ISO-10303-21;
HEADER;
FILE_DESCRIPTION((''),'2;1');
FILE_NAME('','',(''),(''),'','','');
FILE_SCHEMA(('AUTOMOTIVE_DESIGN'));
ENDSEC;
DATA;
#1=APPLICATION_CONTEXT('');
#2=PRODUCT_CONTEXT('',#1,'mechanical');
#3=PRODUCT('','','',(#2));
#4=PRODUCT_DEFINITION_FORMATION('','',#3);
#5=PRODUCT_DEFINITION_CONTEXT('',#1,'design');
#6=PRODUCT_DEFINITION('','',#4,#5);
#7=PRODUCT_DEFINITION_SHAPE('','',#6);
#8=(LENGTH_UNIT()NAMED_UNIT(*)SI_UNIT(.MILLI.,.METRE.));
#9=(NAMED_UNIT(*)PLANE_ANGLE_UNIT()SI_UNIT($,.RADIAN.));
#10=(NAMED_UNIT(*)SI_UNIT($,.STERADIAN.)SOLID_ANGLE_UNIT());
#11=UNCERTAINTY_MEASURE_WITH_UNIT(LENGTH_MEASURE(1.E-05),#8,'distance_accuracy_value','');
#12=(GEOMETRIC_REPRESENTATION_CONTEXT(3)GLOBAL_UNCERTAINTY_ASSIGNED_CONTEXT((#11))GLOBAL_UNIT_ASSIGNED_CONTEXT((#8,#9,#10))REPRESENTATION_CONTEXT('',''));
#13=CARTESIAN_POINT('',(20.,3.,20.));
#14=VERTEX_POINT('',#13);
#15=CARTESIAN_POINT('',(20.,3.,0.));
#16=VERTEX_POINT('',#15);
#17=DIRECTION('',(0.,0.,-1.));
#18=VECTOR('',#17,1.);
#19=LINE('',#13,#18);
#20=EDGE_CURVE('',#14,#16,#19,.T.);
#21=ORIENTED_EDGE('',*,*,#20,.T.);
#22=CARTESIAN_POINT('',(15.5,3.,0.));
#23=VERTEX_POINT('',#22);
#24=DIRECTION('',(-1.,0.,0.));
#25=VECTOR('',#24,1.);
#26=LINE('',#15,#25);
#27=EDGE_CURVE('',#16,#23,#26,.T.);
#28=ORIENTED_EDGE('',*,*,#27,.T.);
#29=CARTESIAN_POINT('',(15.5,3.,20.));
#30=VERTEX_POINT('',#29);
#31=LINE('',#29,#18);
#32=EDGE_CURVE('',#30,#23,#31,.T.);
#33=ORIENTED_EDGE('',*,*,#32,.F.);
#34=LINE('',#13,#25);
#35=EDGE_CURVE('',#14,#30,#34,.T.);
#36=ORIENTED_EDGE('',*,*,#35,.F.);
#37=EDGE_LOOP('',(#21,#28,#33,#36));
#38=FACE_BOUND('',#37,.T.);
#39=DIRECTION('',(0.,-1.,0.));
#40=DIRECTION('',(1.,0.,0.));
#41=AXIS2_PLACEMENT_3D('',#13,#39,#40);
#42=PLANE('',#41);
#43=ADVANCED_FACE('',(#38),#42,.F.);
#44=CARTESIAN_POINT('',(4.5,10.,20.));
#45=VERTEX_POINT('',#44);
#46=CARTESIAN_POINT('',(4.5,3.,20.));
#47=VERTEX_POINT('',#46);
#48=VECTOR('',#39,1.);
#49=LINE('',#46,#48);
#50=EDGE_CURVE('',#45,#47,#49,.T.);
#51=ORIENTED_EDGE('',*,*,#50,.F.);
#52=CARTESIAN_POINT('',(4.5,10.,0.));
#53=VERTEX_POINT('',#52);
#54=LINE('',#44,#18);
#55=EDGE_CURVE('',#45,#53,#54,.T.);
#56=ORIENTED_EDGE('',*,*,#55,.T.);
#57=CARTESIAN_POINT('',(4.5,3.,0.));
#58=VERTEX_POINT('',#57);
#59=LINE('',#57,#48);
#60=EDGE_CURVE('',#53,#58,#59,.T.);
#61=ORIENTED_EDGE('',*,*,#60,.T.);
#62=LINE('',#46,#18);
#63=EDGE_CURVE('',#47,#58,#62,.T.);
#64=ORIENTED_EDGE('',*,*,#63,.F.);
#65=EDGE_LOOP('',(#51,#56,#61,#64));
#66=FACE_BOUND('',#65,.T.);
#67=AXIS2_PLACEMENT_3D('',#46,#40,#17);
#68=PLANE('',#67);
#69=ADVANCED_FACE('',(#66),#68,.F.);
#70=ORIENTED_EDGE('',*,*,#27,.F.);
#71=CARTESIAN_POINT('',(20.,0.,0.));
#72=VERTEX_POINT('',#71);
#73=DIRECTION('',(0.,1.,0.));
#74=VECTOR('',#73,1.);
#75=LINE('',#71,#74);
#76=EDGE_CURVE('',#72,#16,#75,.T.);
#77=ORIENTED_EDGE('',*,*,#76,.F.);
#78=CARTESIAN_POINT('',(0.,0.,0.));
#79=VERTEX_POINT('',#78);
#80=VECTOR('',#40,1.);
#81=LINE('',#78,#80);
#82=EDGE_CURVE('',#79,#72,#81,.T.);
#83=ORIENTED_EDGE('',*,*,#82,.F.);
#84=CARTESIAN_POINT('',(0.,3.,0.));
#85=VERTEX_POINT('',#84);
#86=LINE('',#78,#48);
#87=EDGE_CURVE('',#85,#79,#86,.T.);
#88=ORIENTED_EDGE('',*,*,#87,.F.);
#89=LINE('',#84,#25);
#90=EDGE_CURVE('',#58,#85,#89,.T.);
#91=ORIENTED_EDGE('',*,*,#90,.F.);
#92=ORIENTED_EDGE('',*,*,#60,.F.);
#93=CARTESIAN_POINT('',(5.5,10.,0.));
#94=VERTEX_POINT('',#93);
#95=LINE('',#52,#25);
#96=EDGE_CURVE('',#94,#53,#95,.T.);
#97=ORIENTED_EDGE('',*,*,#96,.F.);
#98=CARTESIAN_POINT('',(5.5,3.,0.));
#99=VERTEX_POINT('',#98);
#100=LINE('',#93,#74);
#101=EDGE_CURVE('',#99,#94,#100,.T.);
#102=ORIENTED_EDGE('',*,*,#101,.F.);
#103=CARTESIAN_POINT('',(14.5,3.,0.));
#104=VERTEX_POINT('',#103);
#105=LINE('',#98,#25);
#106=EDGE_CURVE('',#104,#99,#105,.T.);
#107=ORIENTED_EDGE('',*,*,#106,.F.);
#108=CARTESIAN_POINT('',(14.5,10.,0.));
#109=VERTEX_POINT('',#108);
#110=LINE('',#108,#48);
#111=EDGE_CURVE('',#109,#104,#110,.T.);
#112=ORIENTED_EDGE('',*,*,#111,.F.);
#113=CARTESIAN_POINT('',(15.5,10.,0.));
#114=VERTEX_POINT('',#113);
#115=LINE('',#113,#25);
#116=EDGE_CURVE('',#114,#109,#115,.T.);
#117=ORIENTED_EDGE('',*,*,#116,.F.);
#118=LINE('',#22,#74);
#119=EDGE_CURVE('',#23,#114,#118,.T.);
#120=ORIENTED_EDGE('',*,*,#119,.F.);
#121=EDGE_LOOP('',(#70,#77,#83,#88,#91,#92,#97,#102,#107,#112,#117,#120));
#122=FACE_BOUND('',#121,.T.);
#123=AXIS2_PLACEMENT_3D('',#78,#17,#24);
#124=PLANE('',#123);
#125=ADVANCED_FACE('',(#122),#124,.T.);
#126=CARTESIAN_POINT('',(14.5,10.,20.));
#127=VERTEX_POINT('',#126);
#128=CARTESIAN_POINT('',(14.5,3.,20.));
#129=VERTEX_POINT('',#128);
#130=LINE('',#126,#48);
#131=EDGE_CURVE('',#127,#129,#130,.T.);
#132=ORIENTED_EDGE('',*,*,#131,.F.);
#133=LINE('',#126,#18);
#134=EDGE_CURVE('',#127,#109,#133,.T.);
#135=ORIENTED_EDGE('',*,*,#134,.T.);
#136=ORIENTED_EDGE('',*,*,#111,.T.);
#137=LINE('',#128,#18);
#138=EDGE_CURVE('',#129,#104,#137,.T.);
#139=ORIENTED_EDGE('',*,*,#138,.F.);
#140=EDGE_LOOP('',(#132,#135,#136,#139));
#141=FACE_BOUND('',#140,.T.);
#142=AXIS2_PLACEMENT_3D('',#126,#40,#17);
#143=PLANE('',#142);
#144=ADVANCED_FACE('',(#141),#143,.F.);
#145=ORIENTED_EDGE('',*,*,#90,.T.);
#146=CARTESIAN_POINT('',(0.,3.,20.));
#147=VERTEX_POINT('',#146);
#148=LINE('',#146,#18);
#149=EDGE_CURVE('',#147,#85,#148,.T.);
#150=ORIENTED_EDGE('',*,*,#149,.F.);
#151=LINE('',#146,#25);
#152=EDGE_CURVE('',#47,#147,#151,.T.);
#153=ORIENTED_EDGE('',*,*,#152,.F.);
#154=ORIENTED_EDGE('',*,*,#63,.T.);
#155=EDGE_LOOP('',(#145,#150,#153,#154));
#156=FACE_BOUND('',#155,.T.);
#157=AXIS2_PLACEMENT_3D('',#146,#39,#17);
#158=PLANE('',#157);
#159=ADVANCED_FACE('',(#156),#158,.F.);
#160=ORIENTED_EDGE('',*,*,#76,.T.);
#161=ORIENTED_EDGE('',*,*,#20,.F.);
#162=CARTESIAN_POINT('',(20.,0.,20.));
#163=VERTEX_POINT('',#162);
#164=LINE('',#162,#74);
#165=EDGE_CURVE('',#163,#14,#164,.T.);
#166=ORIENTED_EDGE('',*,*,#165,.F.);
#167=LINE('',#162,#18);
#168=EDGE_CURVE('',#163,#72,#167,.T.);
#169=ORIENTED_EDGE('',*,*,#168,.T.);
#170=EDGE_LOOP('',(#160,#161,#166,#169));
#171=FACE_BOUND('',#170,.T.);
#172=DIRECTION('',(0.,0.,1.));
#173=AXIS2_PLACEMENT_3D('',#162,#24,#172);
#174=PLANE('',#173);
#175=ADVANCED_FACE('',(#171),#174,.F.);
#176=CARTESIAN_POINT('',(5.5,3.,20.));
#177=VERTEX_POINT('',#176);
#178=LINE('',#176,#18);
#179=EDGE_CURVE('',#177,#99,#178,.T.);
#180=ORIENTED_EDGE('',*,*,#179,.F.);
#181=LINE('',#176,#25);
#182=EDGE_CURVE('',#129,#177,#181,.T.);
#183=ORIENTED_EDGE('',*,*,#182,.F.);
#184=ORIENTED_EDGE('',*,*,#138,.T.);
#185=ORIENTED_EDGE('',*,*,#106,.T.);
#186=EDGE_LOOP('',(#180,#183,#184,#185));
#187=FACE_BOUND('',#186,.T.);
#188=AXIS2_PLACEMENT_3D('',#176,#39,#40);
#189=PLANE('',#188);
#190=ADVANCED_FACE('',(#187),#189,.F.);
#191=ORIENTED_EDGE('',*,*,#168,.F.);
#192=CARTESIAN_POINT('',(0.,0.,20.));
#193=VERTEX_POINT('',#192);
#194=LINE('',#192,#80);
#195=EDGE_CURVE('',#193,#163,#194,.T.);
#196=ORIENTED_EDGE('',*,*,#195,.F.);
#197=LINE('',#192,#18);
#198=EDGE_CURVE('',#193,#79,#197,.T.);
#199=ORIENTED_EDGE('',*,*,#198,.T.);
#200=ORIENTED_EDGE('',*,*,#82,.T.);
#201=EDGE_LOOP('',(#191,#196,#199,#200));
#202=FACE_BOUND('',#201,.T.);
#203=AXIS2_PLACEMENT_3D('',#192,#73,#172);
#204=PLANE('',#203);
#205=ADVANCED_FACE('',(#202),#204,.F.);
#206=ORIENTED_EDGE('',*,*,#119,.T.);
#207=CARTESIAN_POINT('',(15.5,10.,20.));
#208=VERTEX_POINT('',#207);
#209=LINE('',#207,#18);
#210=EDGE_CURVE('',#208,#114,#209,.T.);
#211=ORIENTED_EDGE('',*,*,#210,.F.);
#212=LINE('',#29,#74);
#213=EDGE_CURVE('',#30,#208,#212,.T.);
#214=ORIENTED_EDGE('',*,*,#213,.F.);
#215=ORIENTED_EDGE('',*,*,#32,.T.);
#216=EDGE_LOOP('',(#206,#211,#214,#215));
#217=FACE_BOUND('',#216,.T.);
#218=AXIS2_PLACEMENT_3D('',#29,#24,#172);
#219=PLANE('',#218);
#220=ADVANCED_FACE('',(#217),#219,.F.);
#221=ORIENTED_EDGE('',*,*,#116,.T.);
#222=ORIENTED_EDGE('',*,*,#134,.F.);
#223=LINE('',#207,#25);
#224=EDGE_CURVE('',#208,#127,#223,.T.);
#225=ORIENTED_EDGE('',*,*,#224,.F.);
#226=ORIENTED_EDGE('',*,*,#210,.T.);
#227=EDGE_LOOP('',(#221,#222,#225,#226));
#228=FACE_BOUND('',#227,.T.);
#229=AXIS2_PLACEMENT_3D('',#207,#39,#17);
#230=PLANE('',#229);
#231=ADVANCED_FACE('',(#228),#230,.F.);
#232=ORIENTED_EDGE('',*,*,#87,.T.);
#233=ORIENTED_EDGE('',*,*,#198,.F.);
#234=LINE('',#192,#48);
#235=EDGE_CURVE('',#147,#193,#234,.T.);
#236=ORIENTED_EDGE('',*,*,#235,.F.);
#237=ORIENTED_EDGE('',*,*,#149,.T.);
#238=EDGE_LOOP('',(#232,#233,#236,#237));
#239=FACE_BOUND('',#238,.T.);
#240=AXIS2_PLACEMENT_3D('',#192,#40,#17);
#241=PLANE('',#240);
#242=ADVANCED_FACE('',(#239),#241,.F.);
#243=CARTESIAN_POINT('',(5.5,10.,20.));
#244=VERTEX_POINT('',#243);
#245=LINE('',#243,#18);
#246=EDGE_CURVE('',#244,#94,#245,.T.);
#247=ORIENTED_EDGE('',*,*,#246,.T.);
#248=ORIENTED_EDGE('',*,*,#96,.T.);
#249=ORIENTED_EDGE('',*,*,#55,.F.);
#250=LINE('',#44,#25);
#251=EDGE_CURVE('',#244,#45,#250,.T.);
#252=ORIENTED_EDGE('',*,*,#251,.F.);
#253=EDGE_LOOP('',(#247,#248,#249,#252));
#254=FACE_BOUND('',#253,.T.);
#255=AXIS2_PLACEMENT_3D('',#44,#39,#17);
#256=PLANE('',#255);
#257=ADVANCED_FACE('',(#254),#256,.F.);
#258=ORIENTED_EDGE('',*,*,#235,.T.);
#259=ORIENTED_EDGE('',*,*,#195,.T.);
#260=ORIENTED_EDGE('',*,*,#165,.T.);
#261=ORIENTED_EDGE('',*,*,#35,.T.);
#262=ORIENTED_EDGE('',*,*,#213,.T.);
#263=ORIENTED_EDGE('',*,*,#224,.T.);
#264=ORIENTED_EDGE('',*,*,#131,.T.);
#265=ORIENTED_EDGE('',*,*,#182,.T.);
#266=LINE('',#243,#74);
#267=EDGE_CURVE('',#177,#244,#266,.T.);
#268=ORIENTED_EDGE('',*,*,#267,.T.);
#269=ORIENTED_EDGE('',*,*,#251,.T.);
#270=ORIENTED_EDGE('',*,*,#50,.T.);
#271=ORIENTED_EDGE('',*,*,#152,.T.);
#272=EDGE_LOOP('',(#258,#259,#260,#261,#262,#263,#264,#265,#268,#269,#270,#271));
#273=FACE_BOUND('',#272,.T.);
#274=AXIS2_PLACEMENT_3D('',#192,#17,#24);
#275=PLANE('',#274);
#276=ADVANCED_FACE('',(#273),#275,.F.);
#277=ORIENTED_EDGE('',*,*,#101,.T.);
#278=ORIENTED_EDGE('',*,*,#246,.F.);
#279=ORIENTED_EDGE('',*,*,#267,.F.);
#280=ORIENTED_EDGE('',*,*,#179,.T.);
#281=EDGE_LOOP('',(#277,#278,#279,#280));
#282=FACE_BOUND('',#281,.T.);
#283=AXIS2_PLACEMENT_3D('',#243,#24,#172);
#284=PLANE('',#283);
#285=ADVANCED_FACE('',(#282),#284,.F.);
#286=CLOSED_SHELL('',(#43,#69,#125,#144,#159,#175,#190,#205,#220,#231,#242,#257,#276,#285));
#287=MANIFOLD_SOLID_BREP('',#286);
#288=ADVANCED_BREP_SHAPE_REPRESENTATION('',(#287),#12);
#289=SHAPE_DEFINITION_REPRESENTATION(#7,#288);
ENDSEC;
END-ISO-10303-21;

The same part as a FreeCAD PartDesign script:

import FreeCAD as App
import Part
import Sketcher

V = App.Vector
Q = App.Units.Quantity


def add_polygon(sketch, points):
    """Adds a closed chain of lines whose ends are joined by coincident constraints."""
    first, n = sketch.GeometryCount, len(points)
    for a, b in zip(points, points[1:] + points[:1]):
        sketch.addGeometry(Part.LineSegment(App.Vector(*a, 0), App.Vector(*b, 0)), False)
    for i in range(n):
        sketch.addConstraint(Sketcher.Constraint("Coincident", first + i, 2, first + (i + 1) % n, 1))

doc = App.newDocument("Part")
body = doc.addObject("PartDesign::Body", "Body")

# Sketch on XY plane
sketch1 = doc.addObject("Sketcher::SketchObject", "Sketch")
body.addObject(sketch1)
sketch1.AttachmentSupport = (doc.XY_Plane, [""])
sketch1.MapMode = "FlatFace"
add_polygon(sketch1, [(0, 0), (20, 0), (20, 3), (15.5, 3), (15.5, 10), (14.5, 10), (14.5, 3), (5.5, 3), (5.5, 10), (4.5, 10), (4.5, 3), (0, 3)])  # lines 0-11
sketch1.addConstraint(Sketcher.Constraint("Horizontal", 0))
sketch1.addConstraint(Sketcher.Constraint("Vertical", 1))
sketch1.addConstraint(Sketcher.Constraint("Horizontal", 2))
sketch1.addConstraint(Sketcher.Constraint("Vertical", 3))
sketch1.addConstraint(Sketcher.Constraint("Horizontal", 4))
sketch1.addConstraint(Sketcher.Constraint("Vertical", 5))
sketch1.addConstraint(Sketcher.Constraint("Horizontal", 6))
sketch1.addConstraint(Sketcher.Constraint("Vertical", 7))
sketch1.addConstraint(Sketcher.Constraint("Horizontal", 8))
sketch1.addConstraint(Sketcher.Constraint("Vertical", 9))
sketch1.addConstraint(Sketcher.Constraint("Horizontal", 10))
sketch1.addConstraint(Sketcher.Constraint("Vertical", 11))
sketch1.addConstraint(Sketcher.Constraint("Coincident", 11, 2, -1, 1))
sketch1.addConstraint(Sketcher.Constraint("Horizontal", 2, 2, 5, 2))
sketch1.addConstraint(Sketcher.Constraint("Horizontal", 4, 2, 7, 2))
sketch1.addConstraint(Sketcher.Constraint("Horizontal", 6, 2, 9, 2))
sketch1.addConstraint(Sketcher.Constraint("Equal", 4, 8))
sketch1.addConstraint(Sketcher.Constraint("Equal", 2, 10))
sketch1.addConstraint(Sketcher.Constraint("DistanceX", 0, 1, 0, 2, Q("20 mm")))
sketch1.addConstraint(Sketcher.Constraint("DistanceX", 4, 2, 4, 1, Q("1 mm")))
sketch1.addConstraint(Sketcher.Constraint("DistanceX", 6, 2, 6, 1, Q("9 mm")))
sketch1.addConstraint(Sketcher.Constraint("DistanceY", 1, 1, 1, 2, Q("3 mm")))
sketch1.addConstraint(Sketcher.Constraint("DistanceY", 3, 1, 3, 2, Q("7 mm")))
pad1 = doc.addObject("PartDesign::Pad", "Pad")
body.addObject(pad1)
pad1.Profile = sketch1
pad1.Length = 20

doc.recompute()
